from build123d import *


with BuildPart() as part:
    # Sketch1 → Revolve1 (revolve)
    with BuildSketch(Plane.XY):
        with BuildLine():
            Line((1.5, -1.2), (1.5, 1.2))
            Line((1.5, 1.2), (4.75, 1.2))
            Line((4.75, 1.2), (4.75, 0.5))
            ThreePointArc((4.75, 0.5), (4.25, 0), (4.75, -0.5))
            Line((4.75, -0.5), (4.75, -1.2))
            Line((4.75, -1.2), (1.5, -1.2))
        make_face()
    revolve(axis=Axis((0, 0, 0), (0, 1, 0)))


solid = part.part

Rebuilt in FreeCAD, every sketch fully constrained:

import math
import FreeCAD as App
import Part
import Sketcher

V = App.Vector

doc = App.newDocument("Part")
params = doc.addObject("Spreadsheet::Sheet", "Params")
for row, (alias, value) in enumerate([
    ("sketch1_radius", "0.5 mm"),
    ("sketch1_height", "2.4 mm"),
    ("sketch1_width", "3.25 mm"),
    ("revolution_angle", "360 deg"),
], start=1):
    params.set(f"A{row}", alias)
    params.set(f"B{row}", "=" + value)
    params.setAlias(f"B{row}", alias)

body = doc.addObject("PartDesign::Body", "Body")

sketch1 = body.newObject("Sketcher::SketchObject", "Sketch")
sketch1.AttachmentSupport = (doc.getObject("XY_Plane"), [""])
sketch1.MapMode = "FlatFace"
sketch1.addGeometry([
    Part.LineSegment(V(1.5, 1.2, 0), V(1.5, -1.2, 0)),
    Part.LineSegment(V(1.5, -1.2, 0), V(4.75, -1.2, 0)),
    Part.LineSegment(V(4.75, -1.2, 0), V(4.75, -0.5, 0)),
    Part.ArcOfCircle(Part.Circle(V(4.75, 0, 0), V(0, 0, 1), 0.5), math.radians(90), math.radians(270)),
    Part.LineSegment(V(4.75, 0.5, 0), V(4.75, 1.2, 0)),
    Part.LineSegment(V(4.75, 1.2, 0), V(1.5, 1.2, 0)),
], False)
sketch1.addConstraint([
    Sketcher.Constraint("Coincident", 0, 2, 1, 1),
    Sketcher.Constraint("Coincident", 1, 2, 2, 1),
    Sketcher.Constraint("Coincident", 2, 2, 3, 2),
    Sketcher.Constraint("Coincident", 3, 1, 4, 1),
    Sketcher.Constraint("Coincident", 4, 2, 5, 1),
    Sketcher.Constraint("Coincident", 5, 2, 0, 1),
    Sketcher.Constraint("Vertical", 0),
    Sketcher.Constraint("Horizontal", 1),
    Sketcher.Constraint("Vertical", 2),
    Sketcher.Constraint("Vertical", 4),
    Sketcher.Constraint("Horizontal", 5),
    Sketcher.Constraint("Symmetric", 2, 2, 3, 1, -1),
    Sketcher.Constraint("Vertical", 3, 3, 1, 2),
    Sketcher.Constraint("Equal", 2, 4),
    Sketcher.Constraint("Radius", 3, 0.5),
    Sketcher.Constraint("DistanceY", 0, 2, 0, 1, 2.4),
    Sketcher.Constraint("DistanceX", 1, 1, 1, 2, 3.25),
    Sketcher.Constraint("DistanceX", -1, 1, 0, 2, 1.5),
])
sketch1.setExpression("Constraints[14]", "Params.sketch1_radius")
sketch1.setExpression("Constraints[15]", "Params.sketch1_height")
sketch1.setExpression("Constraints[16]", "Params.sketch1_width")
revolution = body.newObject("PartDesign::Revolution", "Revolution")
revolution.Profile = sketch1
revolution.ReferenceAxis = (sketch1, ["V_Axis"])
revolution.setExpression("Angle", "Params.revolution_angle")

doc.recompute()
